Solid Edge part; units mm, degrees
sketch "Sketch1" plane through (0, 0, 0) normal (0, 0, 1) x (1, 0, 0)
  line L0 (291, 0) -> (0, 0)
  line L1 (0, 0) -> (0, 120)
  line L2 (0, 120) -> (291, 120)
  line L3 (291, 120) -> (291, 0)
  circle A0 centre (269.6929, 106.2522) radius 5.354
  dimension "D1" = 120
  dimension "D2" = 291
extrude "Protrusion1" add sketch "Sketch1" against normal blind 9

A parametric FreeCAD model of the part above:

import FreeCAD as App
import Part
import Sketcher
Q = App.Units.Quantity


def add_polygon(sketch, points):
    """Adds a closed chain of lines whose ends are joined by coincident constraints."""
    first, n = sketch.GeometryCount, len(points)
    for a, b in zip(points, points[1:] + points[:1]):
        sketch.addGeometry(Part.LineSegment(App.Vector(*a, 0), App.Vector(*b, 0)), False)
    for i in range(n):
        sketch.addConstraint(Sketcher.Constraint("Coincident", first + i, 2, first + (i + 1) % n, 1))

doc = App.newDocument("Part")
params = doc.addObject("Spreadsheet::Sheet", "Params")
for row, (alias, value) in enumerate([
    ("sketch1_width", "291 mm"),
    ("sketch1_height", "120 mm"),
    ("pad1_length", "9 mm"),
], start=1):
    params.set(f"A{row}", alias)
    params.set(f"B{row}", "=" + value)
    params.setAlias(f"B{row}", alias)

body = doc.addObject("PartDesign::Body", "Body")

# Sketch on XY plane
sketch1 = body.newObject("Sketcher::SketchObject", "Sketch")
sketch1.AttachmentSupport = (doc.getObject("XY_Plane"), [""])
sketch1.MapMode = "FlatFace"
add_polygon(sketch1, [(0, 0), (291, 0), (291, 120), (0, 120)])  # lines 0-3
sketch1.addGeometry(Part.Circle(App.Vector(270, 106, 0), App.Vector(0, 0, 1), 5), False)  # 4
sketch1.addConstraint(Sketcher.Constraint("Horizontal", 0))
sketch1.addConstraint(Sketcher.Constraint("Vertical", 1))
sketch1.addConstraint(Sketcher.Constraint("Horizontal", 2))
sketch1.addConstraint(Sketcher.Constraint("Vertical", 3))
sketch1.addConstraint(Sketcher.Constraint("Coincident", 3, 2, -1, 1))
sketch1.addConstraint(Sketcher.Constraint("DistanceX", 0, 1, 0, 2, Q("291 mm")))
sketch1.addConstraint(Sketcher.Constraint("DistanceY", 1, 1, 1, 2, Q("120 mm")))
sketch1.addConstraint(Sketcher.Constraint("Diameter", 4, Q("10.708 mm")))
sketch1.addConstraint(Sketcher.Constraint("DistanceX", -1, 1, 4, 3, Q("269.693 mm")))
sketch1.addConstraint(Sketcher.Constraint("DistanceY", -1, 1, 4, 3, Q("106.2522 mm")))
sketch1.setExpression("Constraints[9]", "Params.sketch1_width")
sketch1.setExpression("Constraints[10]", "Params.sketch1_height")
pad1 = body.newObject("PartDesign::Pad", "Pad")
pad1.Profile = sketch1
pad1.setExpression("Length", "Params.pad1_length")
pad1.Reversed = True

doc.recompute()
